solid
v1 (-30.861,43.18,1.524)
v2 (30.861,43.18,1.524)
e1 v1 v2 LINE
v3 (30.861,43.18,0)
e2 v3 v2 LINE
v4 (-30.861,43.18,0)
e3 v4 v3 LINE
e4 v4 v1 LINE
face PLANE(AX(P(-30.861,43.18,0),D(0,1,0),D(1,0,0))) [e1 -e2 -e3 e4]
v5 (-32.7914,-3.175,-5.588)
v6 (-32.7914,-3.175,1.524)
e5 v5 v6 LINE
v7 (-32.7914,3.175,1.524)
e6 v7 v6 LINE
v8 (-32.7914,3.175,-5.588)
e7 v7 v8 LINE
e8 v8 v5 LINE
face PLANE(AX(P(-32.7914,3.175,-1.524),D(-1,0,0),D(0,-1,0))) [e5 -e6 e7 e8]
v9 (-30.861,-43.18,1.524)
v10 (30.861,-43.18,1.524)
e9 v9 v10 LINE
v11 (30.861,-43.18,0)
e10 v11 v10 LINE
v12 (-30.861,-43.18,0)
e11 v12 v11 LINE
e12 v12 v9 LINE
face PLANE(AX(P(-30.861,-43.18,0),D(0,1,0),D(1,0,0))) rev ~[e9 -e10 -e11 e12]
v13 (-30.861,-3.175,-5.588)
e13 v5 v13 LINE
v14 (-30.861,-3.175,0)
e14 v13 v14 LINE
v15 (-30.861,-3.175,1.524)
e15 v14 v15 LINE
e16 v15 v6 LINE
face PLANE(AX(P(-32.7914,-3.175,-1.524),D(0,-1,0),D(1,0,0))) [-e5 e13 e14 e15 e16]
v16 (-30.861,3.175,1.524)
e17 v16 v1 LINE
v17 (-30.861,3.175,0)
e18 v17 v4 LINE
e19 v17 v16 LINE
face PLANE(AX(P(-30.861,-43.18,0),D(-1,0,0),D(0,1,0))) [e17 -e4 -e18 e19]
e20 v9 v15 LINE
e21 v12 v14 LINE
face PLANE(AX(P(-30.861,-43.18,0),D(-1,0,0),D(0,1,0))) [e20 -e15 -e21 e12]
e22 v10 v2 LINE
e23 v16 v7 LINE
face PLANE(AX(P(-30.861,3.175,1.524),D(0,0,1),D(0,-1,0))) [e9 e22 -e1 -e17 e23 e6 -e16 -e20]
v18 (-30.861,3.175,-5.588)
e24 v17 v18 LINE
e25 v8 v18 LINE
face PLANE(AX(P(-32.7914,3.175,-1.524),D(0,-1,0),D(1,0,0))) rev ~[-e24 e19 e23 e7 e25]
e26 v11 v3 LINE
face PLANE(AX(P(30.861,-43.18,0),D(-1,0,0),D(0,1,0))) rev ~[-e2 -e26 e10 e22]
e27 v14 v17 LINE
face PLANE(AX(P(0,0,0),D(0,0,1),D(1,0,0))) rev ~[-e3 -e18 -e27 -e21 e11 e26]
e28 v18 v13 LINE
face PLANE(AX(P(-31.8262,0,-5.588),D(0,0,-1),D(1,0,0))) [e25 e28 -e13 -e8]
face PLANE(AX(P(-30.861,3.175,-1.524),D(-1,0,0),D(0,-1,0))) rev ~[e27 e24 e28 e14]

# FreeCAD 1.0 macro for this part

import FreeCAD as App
import Part
import Sketcher

V = App.Vector
Q = App.Units.Quantity


def add_polygon(sketch, points):
    """Adds a closed chain of lines whose ends are joined by coincident constraints."""
    first, n = sketch.GeometryCount, len(points)
    for a, b in zip(points, points[1:] + points[:1]):
        sketch.addGeometry(Part.LineSegment(App.Vector(*a, 0), App.Vector(*b, 0)), False)
    for i in range(n):
        sketch.addConstraint(Sketcher.Constraint("Coincident", first + i, 2, first + (i + 1) % n, 1))

doc = App.newDocument("Part")
body = doc.addObject("PartDesign::Body", "Body")

sketch1 = body.newObject("Sketcher::SketchObject", "Sketch")
sketch1.AttachmentSupport = (doc.getObject("XY_Plane"), [""])
sketch1.MapMode = "FlatFace"
add_polygon(sketch1, [(-31, 43), (-31, -43), (31, -43), (31, 43)])
sketch1.addConstraint([
    Sketcher.Constraint("Vertical", 0),
    Sketcher.Constraint("Horizontal", 1),
    Sketcher.Constraint("Vertical", 2),
    Sketcher.Constraint("Horizontal", 3),
    Sketcher.Constraint("Symmetric", 0, 2, 2, 2, -1, 1),
    Sketcher.Constraint("DistanceY", 0, 2, 0, 1, Q("3.4 in")),
    Sketcher.Constraint("DistanceX", 1, 1, 1, 2, Q("2.43 in")),
])
pad1 = body.newObject("PartDesign::Pad", "Pad")
pad1.Profile = sketch1
pad1.Length = Q("0.06 in")

sketch2 = body.newObject("Sketcher::SketchObject", "Sketch001")
sketch2.AttachmentSupport = (doc.getObject("YZ_Plane"), [""])
sketch2.MapMode = "FlatFace"
sketch2.AttachmentOffset = App.Placement(V(0, 0, -1.215 * 25.4), App.Rotation())
add_polygon(sketch2, [(3.2, 1.5), (3.2, -1.5), (-3.2, -1.5), (-3.2, 1.5)])
sketch2.addConstraint([
    Sketcher.Constraint("Vertical", 0),
    Sketcher.Constraint("Horizontal", 1),
    Sketcher.Constraint("Vertical", 2),
    Sketcher.Constraint("Horizontal", 3),
    Sketcher.Constraint("Symmetric", 0, 2, 2, 2, -1, 1),
    Sketcher.Constraint("DistanceX", 1, 2, 1, 1, Q("0.25 in")),
    Sketcher.Constraint("DistanceY", 0, 2, 0, 1, Q("0.12 in")),
])
pad2 = body.newObject("PartDesign::Pad", "Pad001")
pad2.Profile = sketch2
pad2.Length = Q("0.076 in")
pad2.Reversed = True

sketch3 = body.newObject("Sketcher::SketchObject", "Sketch002")
sketch3.AttachmentSupport = (doc.getObject("XY_Plane"), [""])
sketch3.MapMode = "FlatFace"
sketch3.AttachmentOffset = App.Placement(V(0, 0, -0.06 * 25.4), App.Rotation())
add_polygon(sketch3, [(-32.8, -3.2), (-32.8, 3.2), (-30.9, 3.2), (-30.9, -3.2)])
sketch3.addConstraint([
    Sketcher.Constraint("Vertical", 0),
    Sketcher.Constraint("Horizontal", 1),
    Sketcher.Constraint("Vertical", 2),
    Sketcher.Constraint("Horizontal", 3),
    Sketcher.Constraint("DistanceY", 0, 1, 0, 2, Q("0.25 in")),
    Sketcher.Constraint("DistanceX", 1, 1, 1, 2, Q("0.076 in")),
    Sketcher.Constraint("DistanceX", 0, 2, -1, 1, Q("1.291 in")),
    Sketcher.Constraint("DistanceY", -1, 1, 0, 2, Q("0.125 in")),
])
pad3 = body.newObject("PartDesign::Pad", "Pad002")
pad3.Profile = sketch3
pad3.Length = Q("0.16 in")
pad3.Reversed = True

doc.recompute()
